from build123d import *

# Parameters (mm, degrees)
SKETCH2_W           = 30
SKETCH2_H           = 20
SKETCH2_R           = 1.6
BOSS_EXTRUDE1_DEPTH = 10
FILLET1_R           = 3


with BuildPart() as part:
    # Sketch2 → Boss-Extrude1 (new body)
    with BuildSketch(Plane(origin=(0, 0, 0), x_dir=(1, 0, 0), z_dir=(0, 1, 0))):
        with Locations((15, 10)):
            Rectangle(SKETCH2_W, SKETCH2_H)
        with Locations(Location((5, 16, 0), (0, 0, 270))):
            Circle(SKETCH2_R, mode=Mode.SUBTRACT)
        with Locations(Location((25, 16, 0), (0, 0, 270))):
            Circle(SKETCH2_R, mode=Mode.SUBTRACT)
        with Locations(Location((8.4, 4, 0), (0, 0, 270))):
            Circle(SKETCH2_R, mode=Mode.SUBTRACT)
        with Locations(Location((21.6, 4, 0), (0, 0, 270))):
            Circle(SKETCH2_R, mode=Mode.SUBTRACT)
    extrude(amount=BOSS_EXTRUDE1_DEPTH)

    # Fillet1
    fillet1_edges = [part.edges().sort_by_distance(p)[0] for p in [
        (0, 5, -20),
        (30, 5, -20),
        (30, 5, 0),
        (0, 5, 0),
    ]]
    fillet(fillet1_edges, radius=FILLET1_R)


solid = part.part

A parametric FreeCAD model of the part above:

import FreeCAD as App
import Part
import Sketcher


def edges_at(feature, points):
    """Names of the edges that pass closest to the given points."""
    edges = feature.Shape.Edges
    near = lambda p: min(range(len(edges)), key=lambda i: edges[i].distToShape(Part.Vertex(*p))[0])
    return sorted({f"Edge{near(p) + 1}" for p in points})


def add_polygon(sketch, points):
    """Adds a closed chain of lines whose ends are joined by coincident constraints."""
    first, n = sketch.GeometryCount, len(points)
    for a, b in zip(points, points[1:] + points[:1]):
        sketch.addGeometry(Part.LineSegment(App.Vector(*a, 0), App.Vector(*b, 0)), False)
    for i in range(n):
        sketch.addConstraint(Sketcher.Constraint("Coincident", first + i, 2, first + (i + 1) % n, 1))

doc = App.newDocument("Part")
body = doc.addObject("PartDesign::Body", "Body")

# Sketch on XZ plane
sketch1 = body.newObject("Sketcher::SketchObject", "Sketch")
sketch1.AttachmentSupport = (doc.getObject("XZ_Plane"), [""])
sketch1.MapMode = "FlatFace"
add_polygon(sketch1, [(0, -20), (0, 0), (30, 0), (30, -20)])  # lines 0-3
sketch1.addGeometry(Part.Circle(App.Vector(8.4, -4, 0), App.Vector(0, 0, 1), 1.6), False)  # 4
sketch1.addGeometry(Part.Circle(App.Vector(21.6, -4, 0), App.Vector(0, 0, 1), 1.6), False)  # 5
sketch1.addGeometry(Part.Circle(App.Vector(5, -16, 0), App.Vector(0, 0, 1), 1.6), False)  # 6
sketch1.addGeometry(Part.Circle(App.Vector(25, -16, 0), App.Vector(0, 0, 1), 1.6), False)  # 7
sketch1.addConstraint([
    Sketcher.Constraint("Vertical", 0),
    Sketcher.Constraint("Horizontal", 1),
    Sketcher.Constraint("Vertical", 2),
    Sketcher.Constraint("Horizontal", 3),
    Sketcher.Constraint("Coincident", 0, 2, -1, 1),
    Sketcher.Constraint("Equal", 4, 5),
    Sketcher.Constraint("Equal", 5, 6),
    Sketcher.Constraint("Equal", 6, 7),
    Sketcher.Constraint("Horizontal", 4, 3, 5, 3),
    Sketcher.Constraint("Horizontal", 6, 3, 7, 3),
    Sketcher.Constraint("Diameter", 4, 3.2),
    Sketcher.Constraint("DistanceX", 1, 1, 1, 2, 30.0),
    Sketcher.Constraint("DistanceY", 0, 1, 0, 2, 20.0),
    Sketcher.Constraint("DistanceY", 4, 3, -1, 1, 4.0),
    Sketcher.Constraint("DistanceX", -1, 1, 6, 3, 5.0),
    Sketcher.Constraint("DistanceY", 6, 3, -1, 1, 16.0),
    Sketcher.Constraint("DistanceX", -1, 1, 7, 3, 25.0),
    Sketcher.Constraint("DistanceX", -1, 1, 4, 3, 8.4),
    Sketcher.Constraint("DistanceX", -1, 1, 5, 3, 21.6),
])
pad1 = body.newObject("PartDesign::Pad", "Pad")
pad1.Profile = sketch1
pad1.Length = 10
pad1.Reversed = True
doc.recompute()

fillet = body.newObject("PartDesign::Fillet", "Fillet")
fillet.Base = (pad1, edges_at(pad1, [
    (0, 5, -20),
    (30, 5, -20),
    (30, 5, 0),
    (0, 5, 0),
]))
fillet.Radius = 3

doc.recompute()
